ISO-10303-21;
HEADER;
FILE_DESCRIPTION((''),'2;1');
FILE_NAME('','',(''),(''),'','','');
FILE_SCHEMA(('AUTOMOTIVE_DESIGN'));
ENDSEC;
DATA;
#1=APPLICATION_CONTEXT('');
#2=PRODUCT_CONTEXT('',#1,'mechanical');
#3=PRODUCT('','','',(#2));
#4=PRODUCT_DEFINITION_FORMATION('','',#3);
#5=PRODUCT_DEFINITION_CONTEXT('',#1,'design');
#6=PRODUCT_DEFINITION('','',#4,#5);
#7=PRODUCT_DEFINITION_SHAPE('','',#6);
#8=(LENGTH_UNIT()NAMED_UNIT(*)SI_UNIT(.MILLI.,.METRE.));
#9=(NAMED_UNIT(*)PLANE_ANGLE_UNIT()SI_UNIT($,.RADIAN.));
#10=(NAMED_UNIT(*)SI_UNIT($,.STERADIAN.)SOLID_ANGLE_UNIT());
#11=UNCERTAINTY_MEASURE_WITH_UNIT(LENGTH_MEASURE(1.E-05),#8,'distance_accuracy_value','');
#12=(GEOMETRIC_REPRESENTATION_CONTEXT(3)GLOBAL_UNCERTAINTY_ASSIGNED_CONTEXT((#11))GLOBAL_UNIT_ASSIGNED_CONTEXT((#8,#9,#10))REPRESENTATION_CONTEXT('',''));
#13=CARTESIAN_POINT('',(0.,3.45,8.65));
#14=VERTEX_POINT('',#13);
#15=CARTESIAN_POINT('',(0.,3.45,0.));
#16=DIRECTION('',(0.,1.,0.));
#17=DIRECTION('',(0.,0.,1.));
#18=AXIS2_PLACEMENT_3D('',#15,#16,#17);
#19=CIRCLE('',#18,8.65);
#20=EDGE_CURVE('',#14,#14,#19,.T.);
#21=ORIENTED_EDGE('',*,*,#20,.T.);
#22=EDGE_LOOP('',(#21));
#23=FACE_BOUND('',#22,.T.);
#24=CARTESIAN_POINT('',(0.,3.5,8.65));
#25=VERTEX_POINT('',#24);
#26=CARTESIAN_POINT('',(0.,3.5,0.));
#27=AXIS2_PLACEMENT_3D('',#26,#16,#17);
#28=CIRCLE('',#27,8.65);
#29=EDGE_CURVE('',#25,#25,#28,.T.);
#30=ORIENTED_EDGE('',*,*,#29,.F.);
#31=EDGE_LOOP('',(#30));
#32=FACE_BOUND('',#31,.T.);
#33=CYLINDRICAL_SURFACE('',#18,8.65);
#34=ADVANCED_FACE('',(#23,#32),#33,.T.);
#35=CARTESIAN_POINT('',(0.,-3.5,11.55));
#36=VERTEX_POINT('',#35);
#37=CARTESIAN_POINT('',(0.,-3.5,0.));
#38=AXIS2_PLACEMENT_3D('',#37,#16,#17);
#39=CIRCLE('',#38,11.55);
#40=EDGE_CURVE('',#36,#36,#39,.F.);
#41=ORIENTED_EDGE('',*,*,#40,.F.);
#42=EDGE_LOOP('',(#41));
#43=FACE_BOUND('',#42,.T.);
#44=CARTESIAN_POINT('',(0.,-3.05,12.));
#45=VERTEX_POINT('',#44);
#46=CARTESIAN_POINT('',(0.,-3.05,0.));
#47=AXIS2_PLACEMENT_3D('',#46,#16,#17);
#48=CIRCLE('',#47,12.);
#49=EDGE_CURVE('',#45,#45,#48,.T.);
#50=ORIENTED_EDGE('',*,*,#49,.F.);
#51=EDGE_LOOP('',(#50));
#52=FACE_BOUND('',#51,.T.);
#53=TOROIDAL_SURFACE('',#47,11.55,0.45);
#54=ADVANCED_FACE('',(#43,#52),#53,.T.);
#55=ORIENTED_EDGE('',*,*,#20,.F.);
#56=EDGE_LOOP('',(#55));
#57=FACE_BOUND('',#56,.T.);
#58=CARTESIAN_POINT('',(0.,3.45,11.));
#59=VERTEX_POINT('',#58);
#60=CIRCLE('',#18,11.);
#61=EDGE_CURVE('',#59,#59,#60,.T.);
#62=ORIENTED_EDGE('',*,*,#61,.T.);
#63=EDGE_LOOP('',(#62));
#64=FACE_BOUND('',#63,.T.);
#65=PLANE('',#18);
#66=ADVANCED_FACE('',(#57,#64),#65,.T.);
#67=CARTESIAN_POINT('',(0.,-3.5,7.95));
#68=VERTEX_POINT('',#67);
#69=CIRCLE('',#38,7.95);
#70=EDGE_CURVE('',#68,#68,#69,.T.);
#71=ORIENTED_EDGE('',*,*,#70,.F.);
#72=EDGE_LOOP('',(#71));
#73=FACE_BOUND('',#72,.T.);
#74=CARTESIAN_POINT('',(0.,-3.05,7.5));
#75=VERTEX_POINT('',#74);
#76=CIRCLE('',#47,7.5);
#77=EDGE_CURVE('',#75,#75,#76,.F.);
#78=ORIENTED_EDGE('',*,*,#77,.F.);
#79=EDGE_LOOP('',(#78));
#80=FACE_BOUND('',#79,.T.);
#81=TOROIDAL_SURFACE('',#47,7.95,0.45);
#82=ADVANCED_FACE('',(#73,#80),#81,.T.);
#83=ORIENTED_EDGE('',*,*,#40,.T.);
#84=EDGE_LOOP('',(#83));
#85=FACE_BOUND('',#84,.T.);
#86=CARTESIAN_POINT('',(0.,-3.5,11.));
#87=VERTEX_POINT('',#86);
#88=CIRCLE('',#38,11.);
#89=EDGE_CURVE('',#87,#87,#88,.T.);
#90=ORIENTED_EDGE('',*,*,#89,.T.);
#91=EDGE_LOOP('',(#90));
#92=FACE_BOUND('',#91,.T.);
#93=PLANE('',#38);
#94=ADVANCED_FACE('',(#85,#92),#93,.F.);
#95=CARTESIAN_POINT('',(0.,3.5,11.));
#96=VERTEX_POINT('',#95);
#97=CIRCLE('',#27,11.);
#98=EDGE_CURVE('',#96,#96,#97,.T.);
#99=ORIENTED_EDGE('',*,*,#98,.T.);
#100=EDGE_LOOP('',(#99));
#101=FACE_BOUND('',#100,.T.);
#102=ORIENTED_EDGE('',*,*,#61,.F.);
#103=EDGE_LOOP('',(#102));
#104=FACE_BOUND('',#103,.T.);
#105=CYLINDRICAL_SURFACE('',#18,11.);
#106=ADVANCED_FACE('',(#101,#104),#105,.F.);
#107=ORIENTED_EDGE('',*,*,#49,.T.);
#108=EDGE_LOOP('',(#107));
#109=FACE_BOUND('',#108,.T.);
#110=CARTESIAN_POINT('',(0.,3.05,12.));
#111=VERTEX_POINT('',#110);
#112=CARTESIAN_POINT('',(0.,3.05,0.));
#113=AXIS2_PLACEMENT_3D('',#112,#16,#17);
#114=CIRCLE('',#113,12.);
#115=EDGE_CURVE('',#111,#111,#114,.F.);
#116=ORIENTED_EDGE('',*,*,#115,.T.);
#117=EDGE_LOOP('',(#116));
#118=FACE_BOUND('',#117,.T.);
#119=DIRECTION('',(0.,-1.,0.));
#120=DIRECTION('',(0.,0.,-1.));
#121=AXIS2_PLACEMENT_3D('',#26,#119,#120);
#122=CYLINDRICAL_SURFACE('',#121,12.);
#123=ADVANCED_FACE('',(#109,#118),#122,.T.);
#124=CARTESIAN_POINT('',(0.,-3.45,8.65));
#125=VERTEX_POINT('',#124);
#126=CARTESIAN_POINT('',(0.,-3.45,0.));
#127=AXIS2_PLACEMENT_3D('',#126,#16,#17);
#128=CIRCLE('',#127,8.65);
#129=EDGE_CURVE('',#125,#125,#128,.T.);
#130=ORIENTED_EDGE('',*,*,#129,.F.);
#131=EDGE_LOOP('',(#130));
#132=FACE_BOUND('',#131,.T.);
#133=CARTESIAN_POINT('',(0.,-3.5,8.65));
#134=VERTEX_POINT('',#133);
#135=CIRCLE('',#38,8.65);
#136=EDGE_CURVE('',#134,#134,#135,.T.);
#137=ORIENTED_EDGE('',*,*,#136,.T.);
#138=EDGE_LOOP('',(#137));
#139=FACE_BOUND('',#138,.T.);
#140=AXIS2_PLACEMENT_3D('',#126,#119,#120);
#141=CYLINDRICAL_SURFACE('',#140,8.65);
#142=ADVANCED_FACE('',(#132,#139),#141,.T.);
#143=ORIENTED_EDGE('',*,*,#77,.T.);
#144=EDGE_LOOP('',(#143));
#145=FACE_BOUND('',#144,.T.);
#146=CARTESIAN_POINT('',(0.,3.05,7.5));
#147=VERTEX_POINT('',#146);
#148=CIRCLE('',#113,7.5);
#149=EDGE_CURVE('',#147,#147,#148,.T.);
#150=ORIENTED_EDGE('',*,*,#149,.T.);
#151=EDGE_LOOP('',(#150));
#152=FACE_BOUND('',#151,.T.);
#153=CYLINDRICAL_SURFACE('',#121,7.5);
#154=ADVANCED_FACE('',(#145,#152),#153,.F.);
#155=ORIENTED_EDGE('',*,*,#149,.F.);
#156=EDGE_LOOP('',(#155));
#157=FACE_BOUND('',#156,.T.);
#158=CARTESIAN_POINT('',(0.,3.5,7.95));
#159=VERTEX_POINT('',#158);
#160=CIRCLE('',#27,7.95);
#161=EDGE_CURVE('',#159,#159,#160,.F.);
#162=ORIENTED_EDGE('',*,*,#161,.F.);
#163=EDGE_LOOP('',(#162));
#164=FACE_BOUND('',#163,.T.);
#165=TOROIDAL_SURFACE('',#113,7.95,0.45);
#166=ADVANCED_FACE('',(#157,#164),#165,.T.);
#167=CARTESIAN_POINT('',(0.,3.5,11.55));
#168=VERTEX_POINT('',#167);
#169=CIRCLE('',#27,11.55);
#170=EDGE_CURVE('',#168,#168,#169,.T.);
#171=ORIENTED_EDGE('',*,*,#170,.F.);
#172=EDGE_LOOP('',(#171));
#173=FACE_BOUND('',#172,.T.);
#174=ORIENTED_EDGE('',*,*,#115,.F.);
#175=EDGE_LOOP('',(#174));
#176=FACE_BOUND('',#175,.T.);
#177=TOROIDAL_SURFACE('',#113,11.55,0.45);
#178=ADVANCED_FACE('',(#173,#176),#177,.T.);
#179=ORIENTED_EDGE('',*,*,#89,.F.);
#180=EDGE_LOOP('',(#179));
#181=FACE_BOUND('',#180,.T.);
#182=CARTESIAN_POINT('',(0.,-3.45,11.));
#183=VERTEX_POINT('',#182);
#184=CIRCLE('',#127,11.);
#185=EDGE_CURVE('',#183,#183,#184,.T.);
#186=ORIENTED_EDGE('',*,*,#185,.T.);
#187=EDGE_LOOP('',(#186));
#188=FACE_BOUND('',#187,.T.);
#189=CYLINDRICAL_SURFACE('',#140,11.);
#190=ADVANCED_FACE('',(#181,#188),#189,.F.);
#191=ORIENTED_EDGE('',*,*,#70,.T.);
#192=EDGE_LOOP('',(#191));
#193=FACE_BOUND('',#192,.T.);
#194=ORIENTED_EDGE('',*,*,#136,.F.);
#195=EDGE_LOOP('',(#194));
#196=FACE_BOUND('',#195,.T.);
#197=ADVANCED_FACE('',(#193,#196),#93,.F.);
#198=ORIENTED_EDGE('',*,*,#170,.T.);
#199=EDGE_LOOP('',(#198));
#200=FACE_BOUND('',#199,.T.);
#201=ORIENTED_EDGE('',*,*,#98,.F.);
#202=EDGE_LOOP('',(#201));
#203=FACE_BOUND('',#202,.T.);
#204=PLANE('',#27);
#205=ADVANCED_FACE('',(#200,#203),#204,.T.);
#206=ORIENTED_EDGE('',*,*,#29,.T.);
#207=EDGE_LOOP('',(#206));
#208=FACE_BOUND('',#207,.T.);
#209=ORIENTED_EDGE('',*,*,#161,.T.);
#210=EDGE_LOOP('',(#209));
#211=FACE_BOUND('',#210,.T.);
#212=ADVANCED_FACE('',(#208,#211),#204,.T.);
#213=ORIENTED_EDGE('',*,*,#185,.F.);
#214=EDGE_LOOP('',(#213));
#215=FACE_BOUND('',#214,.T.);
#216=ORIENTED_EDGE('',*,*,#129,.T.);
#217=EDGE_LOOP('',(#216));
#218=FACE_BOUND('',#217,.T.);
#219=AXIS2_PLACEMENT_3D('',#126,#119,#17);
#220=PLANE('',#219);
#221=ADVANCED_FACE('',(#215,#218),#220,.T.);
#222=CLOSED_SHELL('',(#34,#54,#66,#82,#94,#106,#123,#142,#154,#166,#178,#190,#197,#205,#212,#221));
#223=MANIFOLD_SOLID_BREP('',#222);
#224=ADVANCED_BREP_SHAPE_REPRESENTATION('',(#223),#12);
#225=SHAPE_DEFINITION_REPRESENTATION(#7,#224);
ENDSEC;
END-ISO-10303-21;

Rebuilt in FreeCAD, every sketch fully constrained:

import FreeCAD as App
import Part
import Sketcher
Q = App.Units.Quantity


def edges_at(feature, points):
    """Names of the edges that pass closest to the given points."""
    edges = feature.Shape.Edges
    near = lambda p: min(range(len(edges)), key=lambda i: edges[i].distToShape(Part.Vertex(*p))[0])
    return sorted({f"Edge{near(p) + 1}" for p in points})

doc = App.newDocument("Part")
body = doc.addObject("PartDesign::Body", "Body")

# Sketch on XZ plane
sketch1 = body.newObject("Sketcher::SketchObject", "Sketch")
sketch1.AttachmentSupport = (doc.getObject("XZ_Plane"), [""])
sketch1.MapMode = "FlatFace"
sketch1.addGeometry([
    Part.Circle(App.Vector(0, 0, 0), App.Vector(0, 0, 1), 12),
    Part.Circle(App.Vector(0, 0, 0), App.Vector(0, 0, 1), 7.5),
], False)
sketch1.addConstraint([
    Sketcher.Constraint("Coincident", 0, 3, -1, 1),
    Sketcher.Constraint("Coincident", 1, 3, -1, 1),
    Sketcher.Constraint("Diameter", 0, Q("24 mm")),
    Sketcher.Constraint("Diameter", 1, Q("15 mm")),
])
pad1 = body.newObject("PartDesign::Pad", "Pad")
pad1.Profile = sketch1
pad1.Length = 7
pad1.Midplane = True

# Sketch on XZ plane
sketch2 = body.newObject("Sketcher::SketchObject", "Sketch001")
sketch2.AttachmentSupport = (doc.getObject("XZ_Plane"), [""])
sketch2.MapMode = "FlatFace"
sketch2.AttachmentOffset = App.Placement(App.Vector(0, 0, -3.5), App.Rotation())
sketch2.addGeometry([
    Part.Circle(App.Vector(0, 0, 0), App.Vector(0, 0, 1), 11),
    Part.Circle(App.Vector(0, 0, 0), App.Vector(0, 0, 1), 8.65),
], False)
sketch2.addConstraint([
    Sketcher.Constraint("Coincident", 0, 3, -1, 1),
    Sketcher.Constraint("Coincident", 1, 3, -1, 1),
    Sketcher.Constraint("Diameter", 0, Q("22 mm")),
    Sketcher.Constraint("Diameter", 1, Q("17.3 mm")),
])
pocket1 = body.newObject("PartDesign::Pocket", "Pocket")
pocket1.Profile = sketch2
pocket1.Length = 0.05
pocket1.Reversed = True
doc.recompute()

mirrored = body.newObject("PartDesign::Mirrored", "Mirrored")
mirrored.Originals = [pocket1]
mirrored.MirrorPlane = (doc.getObject("XZ_Plane"), [""])
body.Tip = mirrored
doc.recompute()

fillet = body.newObject("PartDesign::Fillet", "Fillet")
fillet.Base = (mirrored, edges_at(mirrored, [
    (0, -3.5, -12),
    (0, 3.5, -12),
    (0, -3.5, -7.5),
    (0, 3.5, -7.5),
]))
fillet.Radius = 0.45

doc.recompute()
